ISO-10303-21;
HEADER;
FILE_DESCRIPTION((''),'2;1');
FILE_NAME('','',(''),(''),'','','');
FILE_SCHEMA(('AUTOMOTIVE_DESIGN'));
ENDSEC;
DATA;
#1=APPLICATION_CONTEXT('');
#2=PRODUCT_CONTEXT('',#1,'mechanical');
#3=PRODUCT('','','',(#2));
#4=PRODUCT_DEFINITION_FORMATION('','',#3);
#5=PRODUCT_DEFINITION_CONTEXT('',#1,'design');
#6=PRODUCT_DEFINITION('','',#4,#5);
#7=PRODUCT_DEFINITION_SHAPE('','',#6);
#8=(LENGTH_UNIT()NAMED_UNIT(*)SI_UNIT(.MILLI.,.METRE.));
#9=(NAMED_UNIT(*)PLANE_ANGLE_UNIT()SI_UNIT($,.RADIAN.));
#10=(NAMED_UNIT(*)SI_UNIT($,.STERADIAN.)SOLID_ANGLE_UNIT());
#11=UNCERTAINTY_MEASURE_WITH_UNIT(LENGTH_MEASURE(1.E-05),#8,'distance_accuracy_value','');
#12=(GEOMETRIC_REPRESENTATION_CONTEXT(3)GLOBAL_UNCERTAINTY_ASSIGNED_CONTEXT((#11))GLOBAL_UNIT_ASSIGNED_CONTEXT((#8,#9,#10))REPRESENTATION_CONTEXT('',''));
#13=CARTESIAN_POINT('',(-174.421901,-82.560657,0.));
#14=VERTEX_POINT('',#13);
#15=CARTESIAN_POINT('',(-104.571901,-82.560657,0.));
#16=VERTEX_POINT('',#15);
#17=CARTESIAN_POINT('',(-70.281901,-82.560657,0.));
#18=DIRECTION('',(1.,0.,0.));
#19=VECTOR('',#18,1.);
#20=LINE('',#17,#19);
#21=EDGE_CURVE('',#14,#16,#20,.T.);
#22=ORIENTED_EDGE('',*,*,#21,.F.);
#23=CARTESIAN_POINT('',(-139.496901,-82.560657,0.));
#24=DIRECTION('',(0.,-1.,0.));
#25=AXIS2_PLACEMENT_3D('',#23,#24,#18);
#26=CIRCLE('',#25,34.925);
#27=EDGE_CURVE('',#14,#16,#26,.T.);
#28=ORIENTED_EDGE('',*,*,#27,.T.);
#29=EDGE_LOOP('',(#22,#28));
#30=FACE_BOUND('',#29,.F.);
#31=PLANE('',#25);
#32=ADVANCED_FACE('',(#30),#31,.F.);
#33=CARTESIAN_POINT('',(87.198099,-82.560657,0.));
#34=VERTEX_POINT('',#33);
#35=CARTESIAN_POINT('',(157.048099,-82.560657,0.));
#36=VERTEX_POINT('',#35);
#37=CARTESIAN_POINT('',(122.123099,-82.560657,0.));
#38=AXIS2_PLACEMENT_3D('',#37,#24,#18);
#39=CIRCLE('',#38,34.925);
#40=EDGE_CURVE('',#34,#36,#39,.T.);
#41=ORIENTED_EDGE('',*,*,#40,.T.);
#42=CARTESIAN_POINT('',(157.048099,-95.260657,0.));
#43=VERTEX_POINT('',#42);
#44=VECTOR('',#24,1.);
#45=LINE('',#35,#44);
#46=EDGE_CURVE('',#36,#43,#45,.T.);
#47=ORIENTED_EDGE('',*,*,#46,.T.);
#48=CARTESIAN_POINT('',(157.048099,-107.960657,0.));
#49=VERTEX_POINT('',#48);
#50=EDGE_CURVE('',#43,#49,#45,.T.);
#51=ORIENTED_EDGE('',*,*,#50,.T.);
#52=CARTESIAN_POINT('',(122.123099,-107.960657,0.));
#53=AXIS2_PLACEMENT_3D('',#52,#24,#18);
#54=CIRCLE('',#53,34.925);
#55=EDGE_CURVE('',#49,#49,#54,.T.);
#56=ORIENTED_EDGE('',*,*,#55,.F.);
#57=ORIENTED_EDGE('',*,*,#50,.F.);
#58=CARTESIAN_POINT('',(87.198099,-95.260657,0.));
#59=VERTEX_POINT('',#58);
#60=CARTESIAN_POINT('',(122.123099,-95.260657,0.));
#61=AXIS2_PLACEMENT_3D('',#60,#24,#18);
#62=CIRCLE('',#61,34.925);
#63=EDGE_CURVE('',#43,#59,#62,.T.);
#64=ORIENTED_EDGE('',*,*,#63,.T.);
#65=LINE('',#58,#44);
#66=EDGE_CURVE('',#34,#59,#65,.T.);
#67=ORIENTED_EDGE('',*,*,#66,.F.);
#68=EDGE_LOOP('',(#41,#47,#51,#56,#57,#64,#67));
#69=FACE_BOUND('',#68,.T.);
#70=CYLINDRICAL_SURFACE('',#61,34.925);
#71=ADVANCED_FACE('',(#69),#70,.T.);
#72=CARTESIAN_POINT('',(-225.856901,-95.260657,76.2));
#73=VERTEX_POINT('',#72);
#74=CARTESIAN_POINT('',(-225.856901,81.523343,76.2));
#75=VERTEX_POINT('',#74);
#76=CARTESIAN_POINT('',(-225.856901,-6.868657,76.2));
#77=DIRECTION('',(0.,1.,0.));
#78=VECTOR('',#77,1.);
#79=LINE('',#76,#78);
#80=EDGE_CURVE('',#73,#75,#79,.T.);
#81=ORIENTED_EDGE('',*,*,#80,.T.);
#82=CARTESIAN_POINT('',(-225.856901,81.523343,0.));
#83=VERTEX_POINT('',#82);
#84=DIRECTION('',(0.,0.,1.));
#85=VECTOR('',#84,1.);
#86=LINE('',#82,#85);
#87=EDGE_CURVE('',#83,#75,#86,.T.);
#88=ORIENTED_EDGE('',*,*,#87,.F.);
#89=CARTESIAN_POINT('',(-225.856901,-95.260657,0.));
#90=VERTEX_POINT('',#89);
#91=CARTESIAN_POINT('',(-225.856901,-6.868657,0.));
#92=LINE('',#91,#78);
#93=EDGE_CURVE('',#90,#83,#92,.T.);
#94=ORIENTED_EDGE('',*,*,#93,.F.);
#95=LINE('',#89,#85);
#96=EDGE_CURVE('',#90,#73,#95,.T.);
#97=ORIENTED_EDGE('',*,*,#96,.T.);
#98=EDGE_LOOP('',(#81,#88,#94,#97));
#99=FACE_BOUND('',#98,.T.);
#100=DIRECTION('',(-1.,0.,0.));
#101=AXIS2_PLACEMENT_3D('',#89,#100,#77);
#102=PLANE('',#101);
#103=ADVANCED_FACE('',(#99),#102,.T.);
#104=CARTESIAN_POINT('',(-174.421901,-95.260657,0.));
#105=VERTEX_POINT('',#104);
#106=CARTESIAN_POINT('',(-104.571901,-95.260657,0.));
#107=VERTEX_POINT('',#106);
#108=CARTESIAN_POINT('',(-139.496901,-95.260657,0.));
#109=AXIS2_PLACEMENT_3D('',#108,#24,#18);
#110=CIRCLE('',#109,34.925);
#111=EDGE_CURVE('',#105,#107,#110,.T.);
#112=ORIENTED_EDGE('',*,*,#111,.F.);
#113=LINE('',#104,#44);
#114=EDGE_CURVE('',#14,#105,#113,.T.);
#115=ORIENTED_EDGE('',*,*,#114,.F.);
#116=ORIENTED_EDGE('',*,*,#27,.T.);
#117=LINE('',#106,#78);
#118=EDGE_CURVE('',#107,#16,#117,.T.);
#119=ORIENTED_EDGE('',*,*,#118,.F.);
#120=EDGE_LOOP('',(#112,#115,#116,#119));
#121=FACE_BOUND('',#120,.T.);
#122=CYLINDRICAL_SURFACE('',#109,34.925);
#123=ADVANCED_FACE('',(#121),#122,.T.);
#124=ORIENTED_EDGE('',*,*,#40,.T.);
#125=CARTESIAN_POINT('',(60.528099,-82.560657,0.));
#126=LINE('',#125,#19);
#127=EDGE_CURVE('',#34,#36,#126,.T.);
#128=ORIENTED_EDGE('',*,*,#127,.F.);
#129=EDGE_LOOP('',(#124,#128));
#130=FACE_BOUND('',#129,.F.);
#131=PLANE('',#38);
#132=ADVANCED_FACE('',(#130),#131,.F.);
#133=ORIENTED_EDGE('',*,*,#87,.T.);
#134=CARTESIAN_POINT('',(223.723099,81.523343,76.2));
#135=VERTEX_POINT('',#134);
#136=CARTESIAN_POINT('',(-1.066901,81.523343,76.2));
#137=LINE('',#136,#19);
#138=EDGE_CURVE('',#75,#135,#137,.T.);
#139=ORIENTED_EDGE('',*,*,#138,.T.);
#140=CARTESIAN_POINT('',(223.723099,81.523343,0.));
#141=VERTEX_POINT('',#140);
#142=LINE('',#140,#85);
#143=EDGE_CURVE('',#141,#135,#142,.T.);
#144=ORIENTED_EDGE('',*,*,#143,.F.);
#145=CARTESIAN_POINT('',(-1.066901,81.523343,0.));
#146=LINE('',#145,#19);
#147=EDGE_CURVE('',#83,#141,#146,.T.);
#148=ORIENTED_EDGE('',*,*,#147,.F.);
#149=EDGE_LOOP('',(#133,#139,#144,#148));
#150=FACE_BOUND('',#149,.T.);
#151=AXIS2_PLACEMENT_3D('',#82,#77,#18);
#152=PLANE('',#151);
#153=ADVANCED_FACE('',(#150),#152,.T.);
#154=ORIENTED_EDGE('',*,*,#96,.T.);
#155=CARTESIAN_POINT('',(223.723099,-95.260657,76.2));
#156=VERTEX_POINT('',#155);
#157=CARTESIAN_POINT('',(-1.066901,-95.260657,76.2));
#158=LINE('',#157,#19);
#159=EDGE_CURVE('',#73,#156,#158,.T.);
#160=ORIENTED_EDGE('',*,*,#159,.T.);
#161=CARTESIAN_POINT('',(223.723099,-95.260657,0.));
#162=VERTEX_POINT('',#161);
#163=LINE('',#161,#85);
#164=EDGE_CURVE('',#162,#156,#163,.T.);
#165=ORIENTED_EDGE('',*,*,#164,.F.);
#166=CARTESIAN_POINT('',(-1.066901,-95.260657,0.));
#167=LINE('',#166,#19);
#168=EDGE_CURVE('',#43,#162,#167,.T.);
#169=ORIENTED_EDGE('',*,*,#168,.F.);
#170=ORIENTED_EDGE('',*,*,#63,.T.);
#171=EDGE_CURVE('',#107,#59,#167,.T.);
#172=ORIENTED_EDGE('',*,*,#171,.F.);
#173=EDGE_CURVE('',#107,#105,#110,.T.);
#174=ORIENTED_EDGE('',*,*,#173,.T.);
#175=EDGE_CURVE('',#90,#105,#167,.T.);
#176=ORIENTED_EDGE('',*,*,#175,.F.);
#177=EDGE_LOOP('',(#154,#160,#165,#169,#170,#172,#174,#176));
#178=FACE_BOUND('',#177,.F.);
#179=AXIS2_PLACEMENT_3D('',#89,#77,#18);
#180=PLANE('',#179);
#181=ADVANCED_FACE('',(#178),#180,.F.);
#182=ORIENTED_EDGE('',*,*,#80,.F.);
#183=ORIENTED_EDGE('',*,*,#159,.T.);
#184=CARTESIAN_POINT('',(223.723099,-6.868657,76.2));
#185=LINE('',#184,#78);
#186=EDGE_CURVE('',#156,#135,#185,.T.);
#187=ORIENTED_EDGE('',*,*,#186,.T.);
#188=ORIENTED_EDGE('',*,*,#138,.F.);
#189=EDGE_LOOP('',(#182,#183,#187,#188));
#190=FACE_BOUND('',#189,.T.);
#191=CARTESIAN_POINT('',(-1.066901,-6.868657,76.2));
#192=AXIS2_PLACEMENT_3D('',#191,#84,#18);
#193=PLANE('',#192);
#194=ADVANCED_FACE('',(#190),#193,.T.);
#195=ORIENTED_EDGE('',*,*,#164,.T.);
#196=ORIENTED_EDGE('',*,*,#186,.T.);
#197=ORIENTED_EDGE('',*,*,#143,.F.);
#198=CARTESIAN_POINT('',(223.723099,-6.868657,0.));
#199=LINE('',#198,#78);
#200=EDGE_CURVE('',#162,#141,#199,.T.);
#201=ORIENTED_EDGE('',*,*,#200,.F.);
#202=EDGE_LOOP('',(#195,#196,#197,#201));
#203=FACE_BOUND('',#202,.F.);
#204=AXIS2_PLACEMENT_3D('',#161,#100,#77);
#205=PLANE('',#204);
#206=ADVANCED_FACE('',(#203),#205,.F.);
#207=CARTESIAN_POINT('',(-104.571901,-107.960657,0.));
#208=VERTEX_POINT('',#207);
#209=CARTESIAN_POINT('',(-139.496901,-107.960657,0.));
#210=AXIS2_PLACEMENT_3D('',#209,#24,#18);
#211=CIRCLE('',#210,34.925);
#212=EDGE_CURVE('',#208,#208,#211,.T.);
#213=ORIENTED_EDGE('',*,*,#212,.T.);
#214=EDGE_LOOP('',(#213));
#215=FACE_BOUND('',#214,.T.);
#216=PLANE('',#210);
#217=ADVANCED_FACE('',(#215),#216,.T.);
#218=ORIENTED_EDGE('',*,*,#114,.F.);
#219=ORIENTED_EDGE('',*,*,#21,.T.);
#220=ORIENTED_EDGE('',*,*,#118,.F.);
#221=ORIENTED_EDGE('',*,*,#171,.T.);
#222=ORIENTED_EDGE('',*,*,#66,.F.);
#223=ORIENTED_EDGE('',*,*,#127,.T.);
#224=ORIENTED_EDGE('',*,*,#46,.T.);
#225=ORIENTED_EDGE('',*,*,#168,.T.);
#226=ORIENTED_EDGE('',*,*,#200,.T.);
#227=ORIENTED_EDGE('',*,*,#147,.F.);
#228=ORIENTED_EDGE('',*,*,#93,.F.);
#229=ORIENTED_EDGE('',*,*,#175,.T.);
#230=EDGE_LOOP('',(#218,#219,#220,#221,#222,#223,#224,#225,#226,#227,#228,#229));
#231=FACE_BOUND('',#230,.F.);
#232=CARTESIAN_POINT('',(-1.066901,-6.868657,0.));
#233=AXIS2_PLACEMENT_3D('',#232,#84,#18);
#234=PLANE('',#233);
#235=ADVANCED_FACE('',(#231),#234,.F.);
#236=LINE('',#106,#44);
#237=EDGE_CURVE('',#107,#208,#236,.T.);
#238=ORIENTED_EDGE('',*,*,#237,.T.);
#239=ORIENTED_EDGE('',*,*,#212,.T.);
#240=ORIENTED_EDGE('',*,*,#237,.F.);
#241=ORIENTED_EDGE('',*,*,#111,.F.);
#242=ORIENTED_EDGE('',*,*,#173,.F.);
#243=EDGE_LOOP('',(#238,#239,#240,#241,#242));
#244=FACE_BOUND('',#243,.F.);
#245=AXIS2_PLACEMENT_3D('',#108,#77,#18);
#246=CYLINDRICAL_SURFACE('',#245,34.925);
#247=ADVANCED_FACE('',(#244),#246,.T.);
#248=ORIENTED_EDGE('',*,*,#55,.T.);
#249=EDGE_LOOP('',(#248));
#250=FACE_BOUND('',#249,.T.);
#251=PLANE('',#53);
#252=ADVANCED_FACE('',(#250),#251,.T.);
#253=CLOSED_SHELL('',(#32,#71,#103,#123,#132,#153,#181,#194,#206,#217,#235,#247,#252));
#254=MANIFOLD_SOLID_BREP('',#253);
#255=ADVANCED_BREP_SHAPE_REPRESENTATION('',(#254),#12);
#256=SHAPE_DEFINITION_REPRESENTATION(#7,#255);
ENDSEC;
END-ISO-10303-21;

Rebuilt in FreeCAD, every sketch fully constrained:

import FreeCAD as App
import Part
import Sketcher
Q = App.Units.Quantity

doc = App.newDocument("Part")
body = doc.addObject("PartDesign::Body", "Body")

# Sketch on XY plane
sketch1 = body.newObject("Sketcher::SketchObject", "Sketch")
sketch1.AttachmentSupport = (doc.getObject("XY_Plane"), [""])
sketch1.MapMode = "FlatFace"
sketch1.addGeometry([
    Part.LineSegment(App.Vector(-225.856901, 81.523343, 0), App.Vector(-225.856901, -95.260657, 0)),
    Part.LineSegment(App.Vector(-225.856901, -95.260657, 0), App.Vector(223.723099, -95.260657, 0)),
    Part.LineSegment(App.Vector(223.723099, -95.260657, 0), App.Vector(223.723099, 81.523343, 0)),
    Part.LineSegment(App.Vector(223.723099, 81.523343, 0), App.Vector(-225.856901, 81.523343, 0)),
], False)
sketch1.addConstraint([
    Sketcher.Constraint("Coincident", 0, 2, 1, 1),
    Sketcher.Constraint("Coincident", 1, 2, 2, 1),
    Sketcher.Constraint("Coincident", 2, 2, 3, 1),
    Sketcher.Constraint("Coincident", 3, 2, 0, 1),
    Sketcher.Constraint("Vertical", 0),
    Sketcher.Constraint("Horizontal", 1),
    Sketcher.Constraint("Vertical", 2),
    Sketcher.Constraint("Horizontal", 3),
    Sketcher.Constraint("DistanceX", 1, 1, 1, 2, Q("17.7 in")),
    Sketcher.Constraint("DistanceY", 0, 2, 0, 1, Q("6.96 in")),
    Sketcher.Constraint("DistanceX", 0, 2, -1, 1, 225.856901),
    Sketcher.Constraint("DistanceY", 0, 2, -1, 1, 95.260657),
])
pad1 = body.newObject("PartDesign::Pad", "Pad")
pad1.Profile = sketch1
pad1.Length = Q("3 in")

# Sketch on XZ plane
sketch2 = body.newObject("Sketcher::SketchObject", "Sketch001")
sketch2.AttachmentSupport = (doc.getObject("XZ_Plane"), [""])
sketch2.MapMode = "FlatFace"
sketch2.AttachmentOffset = App.Placement(App.Vector(0, 0, 95.260657), App.Rotation())
sketch2.addGeometry([
    Part.Circle(App.Vector(-139.496901, 0, 0), App.Vector(0, 0, 1), 34.925),
    Part.Circle(App.Vector(122.123099, 0, 0), App.Vector(0, 0, 1), 34.925),
], False)
sketch2.addConstraint([
    Sketcher.Constraint("Equal", 0, 1),
    Sketcher.Constraint("PointOnObject", 0, 3, -1),
    Sketcher.Constraint("PointOnObject", 1, 3, -1),
    Sketcher.Constraint("Diameter", 0, Q("2.75 in")),
    Sketcher.Constraint("DistanceX", 0, 3, 1, 3, Q("10.3 in")),
    Sketcher.Constraint("DistanceX", 0, 3, -1, 1, 139.496901),
])
pad2 = body.newObject("PartDesign::Pad", "Pad001")
pad2.Profile = sketch2
pad2.Length = Q("1 in")
pad2.Midplane = True

doc.recompute()
